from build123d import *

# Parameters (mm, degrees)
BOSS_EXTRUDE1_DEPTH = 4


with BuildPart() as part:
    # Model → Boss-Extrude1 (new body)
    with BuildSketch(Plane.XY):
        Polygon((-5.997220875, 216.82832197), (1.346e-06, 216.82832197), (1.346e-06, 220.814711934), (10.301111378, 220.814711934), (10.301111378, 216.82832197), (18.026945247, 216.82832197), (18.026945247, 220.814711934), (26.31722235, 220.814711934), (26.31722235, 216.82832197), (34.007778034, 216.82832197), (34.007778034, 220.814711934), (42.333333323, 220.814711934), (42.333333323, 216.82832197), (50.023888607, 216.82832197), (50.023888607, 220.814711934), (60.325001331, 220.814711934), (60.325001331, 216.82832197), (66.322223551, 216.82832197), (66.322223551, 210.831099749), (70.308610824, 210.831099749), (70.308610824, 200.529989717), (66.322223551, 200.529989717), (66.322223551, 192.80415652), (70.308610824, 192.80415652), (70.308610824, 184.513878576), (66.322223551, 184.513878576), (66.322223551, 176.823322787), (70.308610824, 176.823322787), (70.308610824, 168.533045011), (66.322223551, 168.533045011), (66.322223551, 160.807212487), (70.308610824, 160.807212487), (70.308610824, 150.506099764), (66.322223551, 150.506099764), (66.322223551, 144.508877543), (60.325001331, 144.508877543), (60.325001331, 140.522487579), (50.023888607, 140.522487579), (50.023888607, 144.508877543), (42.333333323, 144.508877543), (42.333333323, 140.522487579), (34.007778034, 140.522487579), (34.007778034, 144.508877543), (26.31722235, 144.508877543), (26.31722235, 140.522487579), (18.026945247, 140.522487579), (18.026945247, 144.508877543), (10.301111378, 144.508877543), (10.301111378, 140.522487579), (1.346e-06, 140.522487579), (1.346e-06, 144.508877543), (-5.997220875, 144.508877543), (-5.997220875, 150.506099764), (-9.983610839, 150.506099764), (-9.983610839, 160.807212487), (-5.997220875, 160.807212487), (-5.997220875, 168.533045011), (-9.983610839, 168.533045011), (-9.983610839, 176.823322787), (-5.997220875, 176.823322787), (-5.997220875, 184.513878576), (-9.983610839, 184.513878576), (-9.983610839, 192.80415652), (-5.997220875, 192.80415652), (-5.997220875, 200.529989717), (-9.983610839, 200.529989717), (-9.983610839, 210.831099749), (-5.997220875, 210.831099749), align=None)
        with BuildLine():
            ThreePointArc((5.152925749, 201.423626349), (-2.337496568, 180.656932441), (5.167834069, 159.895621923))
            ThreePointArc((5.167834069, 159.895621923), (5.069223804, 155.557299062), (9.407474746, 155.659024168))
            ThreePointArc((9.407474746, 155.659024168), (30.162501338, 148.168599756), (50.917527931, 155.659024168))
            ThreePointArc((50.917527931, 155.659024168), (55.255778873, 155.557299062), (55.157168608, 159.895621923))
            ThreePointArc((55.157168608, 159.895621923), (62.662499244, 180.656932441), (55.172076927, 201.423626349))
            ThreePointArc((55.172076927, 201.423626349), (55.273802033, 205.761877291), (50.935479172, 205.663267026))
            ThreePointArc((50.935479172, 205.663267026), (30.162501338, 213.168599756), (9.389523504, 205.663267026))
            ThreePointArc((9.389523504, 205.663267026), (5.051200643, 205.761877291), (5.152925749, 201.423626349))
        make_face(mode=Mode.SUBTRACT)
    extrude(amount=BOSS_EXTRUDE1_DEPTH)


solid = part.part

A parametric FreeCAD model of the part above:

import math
import FreeCAD as App
import Part
import Sketcher

V = App.Vector


def add_polygon(sketch, points):
    """Adds a closed chain of lines whose ends are joined by coincident constraints."""
    first, n = sketch.GeometryCount, len(points)
    for a, b in zip(points, points[1:] + points[:1]):
        sketch.addGeometry(Part.LineSegment(App.Vector(*a, 0), App.Vector(*b, 0)), False)
    for i in range(n):
        sketch.addConstraint(Sketcher.Constraint("Coincident", first + i, 2, first + (i + 1) % n, 1))

doc = App.newDocument("Part")
body = doc.addObject("PartDesign::Body", "Body")

sketch1 = body.newObject("Sketcher::SketchObject", "Sketch")
sketch1.AttachmentSupport = (doc.getObject("XY_Plane"), [""])
sketch1.MapMode = "FlatFace"
add_polygon(sketch1, [(0, 216.8), (-6, 216.8), (-6, 210.8), (-10, 210.8), (-10, 200.5), (-6, 200.5), (-6, 192.8), (-10, 192.8), (-10, 184.5), (-6, 184.5), (-6, 176.8), (-10, 176.8), (-10, 168.5), (-6, 168.5), (-6, 160.8), (-10, 160.8), (-10, 150.5), (-6, 150.5), (-6, 144.5), (0, 144.5), (0, 140.5), (10.3, 140.5), (10.3, 144.5), (18, 144.5), (18, 140.5), (26.3, 140.5), (26.3, 144.5), (34, 144.5), (34, 140.5), (42.3, 140.5), (42.3, 144.5), (50, 144.5), (50, 140.5), (60.3, 140.5), (60.3, 144.5), (66.3, 144.5), (66.3, 150.5), (70.3, 150.5), (70.3, 160.8), (66.3, 160.8), (66.3, 168.5), (70.3, 168.5), (70.3, 176.8), (66.3, 176.8), (66.3, 184.5), (70.3, 184.5), (70.3, 192.8), (66.3, 192.8), (66.3, 200.5), (70.3, 200.5), (70.3, 210.8), (66.3, 210.8), (66.3, 216.8), (60.3, 216.8), (60.3, 220.8), (50, 220.8), (50, 216.8), (42.3, 216.8), (42.3, 220.8), (34, 220.8), (34, 216.8), (26.3, 216.8), (26.3, 220.8), (18, 220.8), (18, 216.8), (10.3, 216.8), (10.3, 220.8), (0, 220.8)])
sketch1.addGeometry(Part.ArcOfCircle(Part.Circle(V(7.2, 203.6, 0), V(0, 0, 1), 3), math.radians(42), math.radians(228)), False)
sketch1.addGeometry(Part.ArcOfCircle(Part.Circle(V(30.2, 180.7, 0), V(0, 0, 1), 32.5), math.radians(50), math.radians(130)), False)
sketch1.addGeometry(Part.ArcOfCircle(Part.Circle(V(53.2, 203.6, 0), V(0, 0, 1), 3), math.radians(-48), math.radians(138)), False)
sketch1.addGeometry(Part.ArcOfCircle(Part.Circle(V(30.2, 180.7, 0), V(0, 0, 1), 32.5), math.radians(-40), math.radians(40)), False)
sketch1.addGeometry(Part.ArcOfCircle(Part.Circle(V(53.1, 157.7, 0), V(0, 0, 1), 3), math.radians(-138), math.radians(48)), False)
sketch1.addGeometry(Part.ArcOfCircle(Part.Circle(V(30.2, 180.7, 0), V(0, 0, 1), 32.5), math.radians(-130), math.radians(-50)), False)
sketch1.addGeometry(Part.ArcOfCircle(Part.Circle(V(7.2, 157.7, 0), V(0, 0, 1), 3), math.radians(132), math.radians(318)), False)
sketch1.addGeometry(Part.ArcOfCircle(Part.Circle(V(30.2, 180.7, 0), V(0, 0, 1), 32.5), math.radians(140), math.radians(220)), False)
sketch1.addConstraint([
    Sketcher.Constraint("Coincident", 68, 1, 69, 2),
    Sketcher.Constraint("Coincident", 69, 1, 70, 2),
    Sketcher.Constraint("Coincident", 70, 1, 71, 2),
    Sketcher.Constraint("Coincident", 71, 1, 72, 2),
    Sketcher.Constraint("Coincident", 72, 1, 73, 2),
    Sketcher.Constraint("Coincident", 73, 1, 74, 2),
    Sketcher.Constraint("Coincident", 74, 1, 75, 2),
    Sketcher.Constraint("Coincident", 75, 1, 68, 2),
    Sketcher.Constraint("Horizontal", 0),
    Sketcher.Constraint("Vertical", 1),
    Sketcher.Constraint("Horizontal", 2),
    Sketcher.Constraint("Vertical", 3),
    Sketcher.Constraint("Horizontal", 4),
    Sketcher.Constraint("Vertical", 5),
    Sketcher.Constraint("Horizontal", 6),
    Sketcher.Constraint("Vertical", 7),
    Sketcher.Constraint("Horizontal", 8),
    Sketcher.Constraint("Vertical", 9),
    Sketcher.Constraint("Horizontal", 10),
    Sketcher.Constraint("Vertical", 11),
    Sketcher.Constraint("Horizontal", 12),
    Sketcher.Constraint("Vertical", 13),
    Sketcher.Constraint("Horizontal", 14),
    Sketcher.Constraint("Vertical", 15),
    Sketcher.Constraint("Horizontal", 16),
    Sketcher.Constraint("Vertical", 17),
    Sketcher.Constraint("Horizontal", 18),
    Sketcher.Constraint("Vertical", 19),
    Sketcher.Constraint("Horizontal", 20),
    Sketcher.Constraint("Vertical", 21),
    Sketcher.Constraint("Horizontal", 22),
    Sketcher.Constraint("Vertical", 23),
    Sketcher.Constraint("Horizontal", 24),
    Sketcher.Constraint("Vertical", 25),
    Sketcher.Constraint("Horizontal", 26),
    Sketcher.Constraint("Vertical", 27),
    Sketcher.Constraint("Horizontal", 28),
    Sketcher.Constraint("Vertical", 29),
    Sketcher.Constraint("Horizontal", 30),
    Sketcher.Constraint("Vertical", 31),
    Sketcher.Constraint("Horizontal", 32),
    Sketcher.Constraint("Vertical", 33),
    Sketcher.Constraint("Horizontal", 34),
    Sketcher.Constraint("Vertical", 35),
    Sketcher.Constraint("Horizontal", 36),
    Sketcher.Constraint("Vertical", 37),
    Sketcher.Constraint("Horizontal", 38),
    Sketcher.Constraint("Vertical", 39),
    Sketcher.Constraint("Horizontal", 40),
    Sketcher.Constraint("Vertical", 41),
    Sketcher.Constraint("Horizontal", 42),
    Sketcher.Constraint("Vertical", 43),
    Sketcher.Constraint("Horizontal", 44),
    Sketcher.Constraint("Vertical", 45),
    Sketcher.Constraint("Horizontal", 46),
    Sketcher.Constraint("Vertical", 47),
    Sketcher.Constraint("Horizontal", 48),
    Sketcher.Constraint("Vertical", 49),
    Sketcher.Constraint("Horizontal", 50),
    Sketcher.Constraint("Vertical", 51),
    Sketcher.Constraint("Horizontal", 52),
    Sketcher.Constraint("Vertical", 53),
    Sketcher.Constraint("Horizontal", 54),
    Sketcher.Constraint("Vertical", 55),
    Sketcher.Constraint("Horizontal", 56),
    Sketcher.Constraint("Vertical", 57),
    Sketcher.Constraint("Horizontal", 58),
    Sketcher.Constraint("Vertical", 59),
    Sketcher.Constraint("Horizontal", 60),
    Sketcher.Constraint("Vertical", 61),
    Sketcher.Constraint("Horizontal", 62),
    Sketcher.Constraint("Vertical", 63),
    Sketcher.Constraint("Horizontal", 64),
    Sketcher.Constraint("Vertical", 65),
    Sketcher.Constraint("Horizontal", 66),
    Sketcher.Constraint("Vertical", 67),
    Sketcher.Constraint("Coincident", 71, 3, 69, 3),
    Sketcher.Constraint("Coincident", 73, 3, 69, 3),
    Sketcher.Constraint("Coincident", 75, 3, 69, 3),
    Sketcher.Constraint("Equal", 68, 70),
    Sketcher.Constraint("Equal", 69, 71),
    Sketcher.Constraint("Equal", 70, 72),
    Sketcher.Constraint("Equal", 71, 73),
    Sketcher.Constraint("Equal", 72, 74),
    Sketcher.Constraint("Equal", 73, 75),
    Sketcher.Constraint("PointOnObject", 18, 2, -2),
    Sketcher.Constraint("PointOnObject", 66, 2, -2),
    Sketcher.Constraint("Horizontal", 68, 3, 70, 3),
    Sketcher.Constraint("Horizontal", 72, 3, 74, 3),
    Sketcher.Constraint("Horizontal", 18, 2, 21, 2),
    Sketcher.Constraint("Horizontal", 20, 2, 23, 2),
    Sketcher.Constraint("Horizontal", 22, 2, 25, 2),
    Sketcher.Constraint("Horizontal", 24, 2, 27, 2),
    Sketcher.Constraint("Horizontal", 26, 2, 29, 2),
    Sketcher.Constraint("Horizontal", 28, 2, 31, 2),
    Sketcher.Constraint("Horizontal", 30, 2, 33, 2),
    Sketcher.Constraint("Horizontal", 16, 2, 35, 2),
    Sketcher.Constraint("Horizontal", 14, 2, 37, 2),
    Sketcher.Constraint("Horizontal", 12, 2, 39, 2),
    Sketcher.Constraint("Horizontal", 10, 2, 41, 2),
    Sketcher.Constraint("Horizontal", 8, 2, 43, 2),
    Sketcher.Constraint("Horizontal", 6, 2, 45, 2),
    Sketcher.Constraint("Horizontal", 4, 2, 47, 2),
    Sketcher.Constraint("Horizontal", 2, 2, 49, 2),
    Sketcher.Constraint("Horizontal", 0, 2, 51, 2),
    Sketcher.Constraint("Horizontal", 52, 2, 55, 2),
    Sketcher.Constraint("Horizontal", 54, 2, 57, 2),
    Sketcher.Constraint("Horizontal", 56, 2, 59, 2),
    Sketcher.Constraint("Horizontal", 58, 2, 61, 2),
    Sketcher.Constraint("Horizontal", 60, 2, 63, 2),
    Sketcher.Constraint("Horizontal", 62, 2, 65, 2),
    Sketcher.Constraint("Horizontal", 68, 1, 69, 1),
    Sketcher.Constraint("Horizontal", 72, 1, 73, 1),
    Sketcher.Constraint("Vertical", 1, 2, 4, 2),
    Sketcher.Constraint("Vertical", 3, 2, 6, 2),
    Sketcher.Constraint("Vertical", 5, 2, 8, 2),
    Sketcher.Constraint("Vertical", 7, 2, 10, 2),
    Sketcher.Constraint("Vertical", 9, 2, 12, 2),
    Sketcher.Constraint("Vertical", 11, 2, 14, 2),
    Sketcher.Constraint("Vertical", 13, 2, 16, 2),
    Sketcher.Constraint("Vertical", 35, 2, 38, 2),
    Sketcher.Constraint("Vertical", 37, 2, 40, 2),
    Sketcher.Constraint("Vertical", 39, 2, 42, 2),
    Sketcher.Constraint("Vertical", 41, 2, 44, 2),
    Sketcher.Constraint("Vertical", 43, 2, 46, 2),
    Sketcher.Constraint("Vertical", 45, 2, 48, 2),
    Sketcher.Constraint("Vertical", 47, 2, 50, 2),
    Sketcher.Constraint("Vertical", 33, 2, 52, 2),
    Sketcher.Constraint("Vertical", 31, 2, 54, 2),
    Sketcher.Constraint("Vertical", 29, 2, 56, 2),
    Sketcher.Constraint("Vertical", 27, 2, 58, 2),
    Sketcher.Constraint("Vertical", 25, 2, 60, 2),
    Sketcher.Constraint("Vertical", 23, 2, 62, 2),
    Sketcher.Constraint("Vertical", 21, 2, 64, 2),
    Sketcher.Constraint("Equal", 26, 30),
    Sketcher.Constraint("Equal", 18, 34),
    Sketcher.Constraint("Equal", 52, 1),
    Sketcher.Constraint("Equal", 66, 3),
    Sketcher.Constraint("Equal", 64, 5),
    Sketcher.Constraint("Equal", 62, 7),
    Sketcher.Constraint("Equal", 60, 9),
    Sketcher.Constraint("Equal", 7, 11),
    Sketcher.Constraint("Equal", 5, 13),
    Sketcher.Constraint("Equal", 54, 15),
    Sketcher.Constraint("Equal", 1, 17),
    Sketcher.Constraint("Equal", 16, 19),
    Sketcher.Constraint("Equal", 33, 53),
    Sketcher.Constraint("Radius", 68, 3.0),
    Sketcher.Constraint("Radius", 69, 32.5),
    Sketcher.Constraint("DistanceX", -1, 1, 32, 2, 60.325001),
    Sketcher.Constraint("DistanceX", 2, 2, 2, 1, 3.98639),
    Sketcher.Constraint("DistanceX", 20, 1, 20, 2, 10.30111),
    Sketcher.Constraint("DistanceX", -1, 1, 69, 3, 30.162501),
    Sketcher.Constraint("DistanceY", -1, 1, 69, 3, 180.6686),
    Sketcher.Constraint("DistanceY", -1, 1, 1, 2, 210.8311),
    Sketcher.Constraint("DistanceY", -1, 1, 15, 2, 150.5061),
    Sketcher.Constraint("DistanceX", 0, 2, 0, 1, 5.997222),
    Sketcher.Constraint("DistanceX", 22, 1, 22, 2, 7.725834),
    Sketcher.Constraint("DistanceX", 24, 1, 24, 2, 8.290277),
    Sketcher.Constraint("DistanceX", 26, 1, 26, 2, 7.690556),
    Sketcher.Constraint("DistanceX", 36, 1, 36, 2, 3.986387),
    Sketcher.Constraint("DistanceY", -1, 1, 68, 3, 203.641319),
    Sketcher.Constraint("DistanceX", -1, 1, 70, 3, 53.15172),
    Sketcher.Constraint("DistanceX", -1, 1, 72, 3, 53.13522),
    Sketcher.Constraint("DistanceY", -1, 1, 72, 3, 157.679381),
])
pad1 = body.newObject("PartDesign::Pad", "Pad")
pad1.Profile = sketch1
pad1.Length = 4

doc.recompute()
